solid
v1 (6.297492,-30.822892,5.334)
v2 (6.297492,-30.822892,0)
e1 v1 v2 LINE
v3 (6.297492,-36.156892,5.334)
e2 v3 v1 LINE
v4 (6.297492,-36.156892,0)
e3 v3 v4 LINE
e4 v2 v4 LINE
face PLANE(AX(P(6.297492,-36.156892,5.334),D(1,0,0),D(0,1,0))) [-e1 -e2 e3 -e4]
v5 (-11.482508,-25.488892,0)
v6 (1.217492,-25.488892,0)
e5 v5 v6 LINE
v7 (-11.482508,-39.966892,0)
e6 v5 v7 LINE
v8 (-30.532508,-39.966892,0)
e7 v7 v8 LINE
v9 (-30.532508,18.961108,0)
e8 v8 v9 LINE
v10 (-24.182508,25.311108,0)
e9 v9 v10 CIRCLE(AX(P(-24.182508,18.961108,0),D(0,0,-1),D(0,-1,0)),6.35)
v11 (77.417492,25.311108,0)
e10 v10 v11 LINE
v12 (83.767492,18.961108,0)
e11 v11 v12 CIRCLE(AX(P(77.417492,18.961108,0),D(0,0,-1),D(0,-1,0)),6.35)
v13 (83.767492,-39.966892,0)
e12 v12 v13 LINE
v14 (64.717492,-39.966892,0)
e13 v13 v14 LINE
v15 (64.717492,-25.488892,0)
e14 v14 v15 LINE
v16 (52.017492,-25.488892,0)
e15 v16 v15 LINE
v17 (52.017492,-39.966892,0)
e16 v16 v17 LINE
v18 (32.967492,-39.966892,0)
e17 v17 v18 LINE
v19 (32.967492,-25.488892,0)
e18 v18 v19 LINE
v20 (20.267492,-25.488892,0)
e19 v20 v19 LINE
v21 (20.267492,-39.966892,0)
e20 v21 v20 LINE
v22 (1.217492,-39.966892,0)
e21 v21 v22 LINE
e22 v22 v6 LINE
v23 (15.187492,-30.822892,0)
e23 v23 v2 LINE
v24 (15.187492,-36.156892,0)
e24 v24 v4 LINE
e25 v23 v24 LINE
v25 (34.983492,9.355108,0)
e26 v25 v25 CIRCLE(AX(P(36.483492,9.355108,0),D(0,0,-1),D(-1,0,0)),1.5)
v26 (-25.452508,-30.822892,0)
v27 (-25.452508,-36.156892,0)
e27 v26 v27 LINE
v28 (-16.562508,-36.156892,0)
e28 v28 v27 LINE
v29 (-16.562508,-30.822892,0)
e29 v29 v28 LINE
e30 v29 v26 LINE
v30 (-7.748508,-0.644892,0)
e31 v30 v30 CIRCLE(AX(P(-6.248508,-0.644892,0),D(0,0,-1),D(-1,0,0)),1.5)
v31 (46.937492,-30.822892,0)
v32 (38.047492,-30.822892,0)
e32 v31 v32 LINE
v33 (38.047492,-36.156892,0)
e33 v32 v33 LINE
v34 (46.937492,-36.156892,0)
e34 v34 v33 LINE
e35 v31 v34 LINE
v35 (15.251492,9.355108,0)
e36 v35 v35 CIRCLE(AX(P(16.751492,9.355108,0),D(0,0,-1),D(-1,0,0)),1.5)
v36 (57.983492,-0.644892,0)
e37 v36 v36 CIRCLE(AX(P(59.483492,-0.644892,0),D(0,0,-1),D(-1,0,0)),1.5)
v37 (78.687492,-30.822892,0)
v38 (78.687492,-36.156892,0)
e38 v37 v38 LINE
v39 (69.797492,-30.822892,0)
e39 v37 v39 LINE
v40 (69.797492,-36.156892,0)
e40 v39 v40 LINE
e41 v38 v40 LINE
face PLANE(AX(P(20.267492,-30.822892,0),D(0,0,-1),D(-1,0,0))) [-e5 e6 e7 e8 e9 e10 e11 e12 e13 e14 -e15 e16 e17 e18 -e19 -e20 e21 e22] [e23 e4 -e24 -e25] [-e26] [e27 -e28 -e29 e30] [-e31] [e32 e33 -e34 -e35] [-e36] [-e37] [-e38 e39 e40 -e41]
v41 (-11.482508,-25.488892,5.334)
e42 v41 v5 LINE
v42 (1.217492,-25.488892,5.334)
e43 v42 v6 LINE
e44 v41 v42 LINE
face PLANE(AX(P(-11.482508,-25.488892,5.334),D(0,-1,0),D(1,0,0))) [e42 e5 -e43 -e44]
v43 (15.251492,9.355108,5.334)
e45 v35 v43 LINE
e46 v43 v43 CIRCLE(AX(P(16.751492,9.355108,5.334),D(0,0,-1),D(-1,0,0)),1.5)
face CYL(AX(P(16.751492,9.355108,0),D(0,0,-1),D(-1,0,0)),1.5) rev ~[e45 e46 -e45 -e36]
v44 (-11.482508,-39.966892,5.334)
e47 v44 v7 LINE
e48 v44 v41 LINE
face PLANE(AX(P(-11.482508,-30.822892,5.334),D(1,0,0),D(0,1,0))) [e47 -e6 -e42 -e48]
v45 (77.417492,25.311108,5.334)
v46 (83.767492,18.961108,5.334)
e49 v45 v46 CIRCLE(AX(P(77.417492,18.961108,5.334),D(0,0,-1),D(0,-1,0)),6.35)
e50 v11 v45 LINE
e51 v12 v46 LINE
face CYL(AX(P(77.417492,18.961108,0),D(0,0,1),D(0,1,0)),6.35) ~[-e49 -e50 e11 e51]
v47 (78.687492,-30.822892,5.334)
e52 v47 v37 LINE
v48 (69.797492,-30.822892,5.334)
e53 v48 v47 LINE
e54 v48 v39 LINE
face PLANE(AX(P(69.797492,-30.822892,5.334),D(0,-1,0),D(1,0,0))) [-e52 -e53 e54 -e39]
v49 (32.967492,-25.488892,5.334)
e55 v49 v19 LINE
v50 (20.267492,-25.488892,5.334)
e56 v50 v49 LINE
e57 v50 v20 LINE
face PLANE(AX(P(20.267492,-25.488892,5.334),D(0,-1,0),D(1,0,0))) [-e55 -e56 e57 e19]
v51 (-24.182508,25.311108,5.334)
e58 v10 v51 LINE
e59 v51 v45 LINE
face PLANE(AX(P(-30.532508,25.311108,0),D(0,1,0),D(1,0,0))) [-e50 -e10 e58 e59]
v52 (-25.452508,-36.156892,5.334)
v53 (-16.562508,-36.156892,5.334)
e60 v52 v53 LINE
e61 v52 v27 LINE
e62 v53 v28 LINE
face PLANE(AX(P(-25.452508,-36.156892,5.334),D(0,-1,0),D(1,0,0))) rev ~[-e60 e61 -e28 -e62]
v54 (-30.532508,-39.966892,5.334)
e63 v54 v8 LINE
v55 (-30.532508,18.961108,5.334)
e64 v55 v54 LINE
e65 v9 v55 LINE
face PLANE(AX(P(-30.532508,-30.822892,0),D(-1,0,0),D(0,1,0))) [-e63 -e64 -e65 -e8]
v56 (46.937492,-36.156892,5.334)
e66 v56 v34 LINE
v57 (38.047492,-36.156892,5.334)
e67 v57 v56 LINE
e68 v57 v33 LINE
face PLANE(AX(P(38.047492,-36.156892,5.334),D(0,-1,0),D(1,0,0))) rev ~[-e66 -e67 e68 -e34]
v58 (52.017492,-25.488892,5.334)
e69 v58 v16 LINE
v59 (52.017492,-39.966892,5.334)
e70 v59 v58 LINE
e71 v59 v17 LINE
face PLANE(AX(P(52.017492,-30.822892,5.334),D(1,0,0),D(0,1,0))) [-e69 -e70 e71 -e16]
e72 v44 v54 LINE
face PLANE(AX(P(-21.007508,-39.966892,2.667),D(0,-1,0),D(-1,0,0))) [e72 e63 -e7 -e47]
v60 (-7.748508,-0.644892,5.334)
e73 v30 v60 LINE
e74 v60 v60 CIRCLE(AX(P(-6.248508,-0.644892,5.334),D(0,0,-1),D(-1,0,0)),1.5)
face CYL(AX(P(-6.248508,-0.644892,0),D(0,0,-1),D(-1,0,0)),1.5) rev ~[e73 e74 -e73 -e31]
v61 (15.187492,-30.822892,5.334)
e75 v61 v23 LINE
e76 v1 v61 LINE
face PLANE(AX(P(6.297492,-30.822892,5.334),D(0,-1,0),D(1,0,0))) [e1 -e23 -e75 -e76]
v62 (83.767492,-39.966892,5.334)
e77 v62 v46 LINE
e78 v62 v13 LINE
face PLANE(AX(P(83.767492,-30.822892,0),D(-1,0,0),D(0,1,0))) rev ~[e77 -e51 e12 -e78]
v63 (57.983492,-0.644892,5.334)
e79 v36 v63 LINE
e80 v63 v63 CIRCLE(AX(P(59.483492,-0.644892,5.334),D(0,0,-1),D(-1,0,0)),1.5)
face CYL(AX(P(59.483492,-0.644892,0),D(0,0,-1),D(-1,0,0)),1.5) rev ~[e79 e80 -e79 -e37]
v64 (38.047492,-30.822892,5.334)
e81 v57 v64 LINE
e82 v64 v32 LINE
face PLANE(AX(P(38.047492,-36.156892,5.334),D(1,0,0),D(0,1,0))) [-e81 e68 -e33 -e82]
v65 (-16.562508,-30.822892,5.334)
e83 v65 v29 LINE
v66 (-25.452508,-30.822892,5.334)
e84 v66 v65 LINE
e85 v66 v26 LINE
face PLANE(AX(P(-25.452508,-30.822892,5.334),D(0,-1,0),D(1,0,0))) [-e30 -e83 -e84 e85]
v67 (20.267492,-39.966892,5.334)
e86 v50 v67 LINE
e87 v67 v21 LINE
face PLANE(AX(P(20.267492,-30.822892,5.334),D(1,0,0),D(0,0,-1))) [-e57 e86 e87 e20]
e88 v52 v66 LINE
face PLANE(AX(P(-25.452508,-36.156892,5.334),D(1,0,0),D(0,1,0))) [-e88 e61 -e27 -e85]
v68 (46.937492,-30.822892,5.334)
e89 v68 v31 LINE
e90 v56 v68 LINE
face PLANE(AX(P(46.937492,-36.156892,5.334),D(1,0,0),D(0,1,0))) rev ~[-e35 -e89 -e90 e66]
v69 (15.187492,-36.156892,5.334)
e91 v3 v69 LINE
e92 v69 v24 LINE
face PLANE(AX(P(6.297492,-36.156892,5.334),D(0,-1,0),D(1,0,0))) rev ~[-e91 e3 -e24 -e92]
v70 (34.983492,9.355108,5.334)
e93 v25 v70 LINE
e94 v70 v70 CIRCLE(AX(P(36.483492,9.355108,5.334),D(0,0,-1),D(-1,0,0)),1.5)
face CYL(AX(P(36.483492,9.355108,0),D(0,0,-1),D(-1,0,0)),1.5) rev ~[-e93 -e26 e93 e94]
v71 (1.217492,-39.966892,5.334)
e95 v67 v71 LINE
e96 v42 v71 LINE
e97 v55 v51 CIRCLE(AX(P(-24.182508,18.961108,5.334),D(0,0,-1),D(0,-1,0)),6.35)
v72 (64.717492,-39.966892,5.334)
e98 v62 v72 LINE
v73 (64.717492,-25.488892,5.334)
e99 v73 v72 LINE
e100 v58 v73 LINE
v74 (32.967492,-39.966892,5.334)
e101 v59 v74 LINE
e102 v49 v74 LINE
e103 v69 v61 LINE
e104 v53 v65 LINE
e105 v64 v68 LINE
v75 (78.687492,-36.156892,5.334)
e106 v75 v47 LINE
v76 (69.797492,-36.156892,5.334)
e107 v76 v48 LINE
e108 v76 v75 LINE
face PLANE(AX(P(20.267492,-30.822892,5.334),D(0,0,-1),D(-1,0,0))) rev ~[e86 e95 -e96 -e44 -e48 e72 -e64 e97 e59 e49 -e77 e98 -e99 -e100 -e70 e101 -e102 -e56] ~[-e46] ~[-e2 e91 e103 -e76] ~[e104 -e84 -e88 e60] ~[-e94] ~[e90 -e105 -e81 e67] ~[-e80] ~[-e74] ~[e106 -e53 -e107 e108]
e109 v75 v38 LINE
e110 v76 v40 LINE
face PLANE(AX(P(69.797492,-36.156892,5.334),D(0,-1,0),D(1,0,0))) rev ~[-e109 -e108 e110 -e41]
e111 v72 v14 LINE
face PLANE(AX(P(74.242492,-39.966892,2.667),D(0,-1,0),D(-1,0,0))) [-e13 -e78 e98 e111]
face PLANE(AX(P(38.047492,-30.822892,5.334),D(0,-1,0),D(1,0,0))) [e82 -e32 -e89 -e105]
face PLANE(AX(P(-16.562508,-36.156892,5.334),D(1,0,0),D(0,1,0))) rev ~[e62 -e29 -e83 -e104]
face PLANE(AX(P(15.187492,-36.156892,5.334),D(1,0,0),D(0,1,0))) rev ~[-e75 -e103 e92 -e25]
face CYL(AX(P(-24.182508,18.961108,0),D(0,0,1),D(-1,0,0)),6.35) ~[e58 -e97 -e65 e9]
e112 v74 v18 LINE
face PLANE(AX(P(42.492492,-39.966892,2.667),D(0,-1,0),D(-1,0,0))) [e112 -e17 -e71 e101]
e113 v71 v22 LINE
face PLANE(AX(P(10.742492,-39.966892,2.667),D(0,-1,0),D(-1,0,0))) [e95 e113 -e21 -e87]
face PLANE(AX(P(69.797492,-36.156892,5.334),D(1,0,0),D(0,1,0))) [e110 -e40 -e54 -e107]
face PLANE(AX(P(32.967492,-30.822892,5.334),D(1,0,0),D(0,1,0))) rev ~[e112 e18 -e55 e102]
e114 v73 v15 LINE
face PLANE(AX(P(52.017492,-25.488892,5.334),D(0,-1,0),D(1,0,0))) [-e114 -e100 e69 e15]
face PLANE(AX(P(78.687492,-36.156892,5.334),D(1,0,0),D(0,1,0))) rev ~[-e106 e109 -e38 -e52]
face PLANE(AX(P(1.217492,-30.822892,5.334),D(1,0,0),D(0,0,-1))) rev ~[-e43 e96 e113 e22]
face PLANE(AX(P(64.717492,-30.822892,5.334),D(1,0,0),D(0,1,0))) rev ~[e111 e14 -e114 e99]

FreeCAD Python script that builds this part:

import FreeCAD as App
import Part
import Sketcher
from FreeCAD import Vector
Q = App.Units.Quantity


def edges_at(feature, points):
    """Names of the edges that pass closest to the given points."""
    edges = feature.Shape.Edges
    near = lambda p: min(range(len(edges)), key=lambda i: edges[i].distToShape(Part.Vertex(*p))[0])
    return sorted({f"Edge{near(p) + 1}" for p in points})

doc = App.newDocument("Part")
params = doc.addObject("Spreadsheet::Sheet", "Params")
for row, (alias, value) in enumerate([
    ("sketch1_width", "4.5 in"),
    ("sketch1_height", "2.21 in"),
    ("pad1_length", "0.21 in"),
    ("sketch2_width", "0.5 in"),
    ("sketch2_height", "0.21 in"),
    ("fillet_radius", "0.25 in"),
    ("sketch4_width", "0.75 in"),
    ("sketch4_height", "0.21 in"),
    ("pad2_length", "0.36 in"),
    ("sketch5_width", "0.35 in"),
    ("sketch5_height", "0.21 in"),
], start=1):
    params.set(f"A{row}", alias)
    params.set(f"B{row}", "=" + value)
    params.setAlias(f"B{row}", alias)

body = doc.addObject("PartDesign::Body", "Body")

# Sketch on XY plane
sketch1 = body.newObject("Sketcher::SketchObject", "Sketch")
sketch1.AttachmentSupport = (doc.getObject("XY_Plane"), [""])
sketch1.MapMode = "FlatFace"
sketch1.addGeometry([
    Part.LineSegment(Vector(-31, 25, 0), Vector(-31, -31, 0)),
    Part.LineSegment(Vector(-31, -31, 0), Vector(84, -31, 0)),
    Part.LineSegment(Vector(84, -31, 0), Vector(84, 25, 0)),
    Part.LineSegment(Vector(84, 25, 0), Vector(-31, 25, 0)),
], False)
sketch1.addConstraint([
    Sketcher.Constraint("Coincident", 0, 2, 1, 1),
    Sketcher.Constraint("Coincident", 1, 2, 2, 1),
    Sketcher.Constraint("Coincident", 2, 2, 3, 1),
    Sketcher.Constraint("Coincident", 3, 2, 0, 1),
    Sketcher.Constraint("Vertical", 0),
    Sketcher.Constraint("Horizontal", 1),
    Sketcher.Constraint("Vertical", 2),
    Sketcher.Constraint("Horizontal", 3),
    Sketcher.Constraint("DistanceX", 1, 1, 1, 2, Q("4.5 in")),
    Sketcher.Constraint("DistanceY", 0, 2, 0, 1, Q("2.21 in")),
    Sketcher.Constraint("DistanceX", 0, 2, -1, 1, Q("30.532508 mm")),
    Sketcher.Constraint("DistanceY", 0, 2, -1, 1, Q("30.822892 mm")),
])
sketch1.setExpression("Constraints[8]", "Params.sketch1_width")
sketch1.setExpression("Constraints[9]", "Params.sketch1_height")
pad1 = body.newObject("PartDesign::Pad", "Pad")
pad1.Profile = sketch1
pad1.setExpression("Length", "Params.pad1_length")

# Sketch on XY plane
sketch2 = body.newObject("Sketcher::SketchObject", "Sketch001")
sketch2.AttachmentSupport = (doc.getObject("XY_Plane"), [""])
sketch2.MapMode = "FlatFace"
sketch2.AttachmentOffset = App.Placement(Vector(0, 0, 0.21 * 25.4), App.Rotation())
sketch2.addGeometry([
    Part.LineSegment(Vector(-11, -25, 0), Vector(-11, -31, 0)),  # 0
    Part.LineSegment(Vector(-11, -31, 0), Vector(1, -31, 0)),  # 1
    Part.LineSegment(Vector(1, -31, 0), Vector(1, -25, 0)),  # 2
    Part.LineSegment(Vector(1, -25, 0), Vector(-11, -25, 0)),  # 3
    Part.LineSegment(Vector(20, -25, 0), Vector(20, -31, 0)),  # 4
    Part.LineSegment(Vector(20, -31, 0), Vector(33, -31, 0)),  # 5
    Part.LineSegment(Vector(33, -31, 0), Vector(33, -25, 0)),  # 6
    Part.LineSegment(Vector(33, -25, 0), Vector(20, -25, 0)),  # 7
    Part.LineSegment(Vector(52, -25, 0), Vector(52, -31, 0)),  # 8
    Part.LineSegment(Vector(52, -31, 0), Vector(65, -31, 0)),  # 9
    Part.LineSegment(Vector(65, -31, 0), Vector(65, -25, 0)),  # 10
    Part.LineSegment(Vector(65, -25, 0), Vector(52, -25, 0)),  # 11
], False)
sketch2.addConstraint([
    Sketcher.Constraint("Coincident", 0, 2, 1, 1),
    Sketcher.Constraint("Coincident", 1, 2, 2, 1),
    Sketcher.Constraint("Coincident", 2, 2, 3, 1),
    Sketcher.Constraint("Coincident", 3, 2, 0, 1),
    Sketcher.Constraint("Coincident", 4, 2, 5, 1),
    Sketcher.Constraint("Coincident", 5, 2, 6, 1),
    Sketcher.Constraint("Coincident", 6, 2, 7, 1),
    Sketcher.Constraint("Coincident", 7, 2, 4, 1),
    Sketcher.Constraint("Coincident", 8, 2, 9, 1),
    Sketcher.Constraint("Coincident", 9, 2, 10, 1),
    Sketcher.Constraint("Coincident", 10, 2, 11, 1),
    Sketcher.Constraint("Coincident", 11, 2, 8, 1),
    Sketcher.Constraint("Vertical", 0),
    Sketcher.Constraint("Horizontal", 1),
    Sketcher.Constraint("Vertical", 2),
    Sketcher.Constraint("Horizontal", 3),
    Sketcher.Constraint("Vertical", 4),
    Sketcher.Constraint("Horizontal", 5),
    Sketcher.Constraint("Vertical", 6),
    Sketcher.Constraint("Horizontal", 7),
    Sketcher.Constraint("Vertical", 8),
    Sketcher.Constraint("Horizontal", 9),
    Sketcher.Constraint("Vertical", 10),
    Sketcher.Constraint("Horizontal", 11),
    Sketcher.Constraint("Horizontal", 1, 2, 4, 2),
    Sketcher.Constraint("Horizontal", 3, 2, 6, 2),
    Sketcher.Constraint("Horizontal", 5, 2, 8, 2),
    Sketcher.Constraint("Horizontal", 7, 2, 10, 2),
    Sketcher.Constraint("Equal", 3, 5),
    Sketcher.Constraint("Equal", 7, 9),
    Sketcher.Constraint("DistanceX", 1, 1, 1, 2, Q("0.5 in")),
    Sketcher.Constraint("DistanceX", 1, 2, 8, 2, Q("2 in")),
    Sketcher.Constraint("DistanceY", 0, 2, 0, 1, Q("0.21 in")),
    Sketcher.Constraint("DistanceX", 1, 2, 4, 2, Q("0.75 in")),
    Sketcher.Constraint("DistanceX", 0, 2, -1, 1, Q("11.482508 mm")),
    Sketcher.Constraint("DistanceY", 0, 2, -1, 1, Q("30.822892 mm")),
])
sketch2.setExpression("Constraints[30]", "Params.sketch2_width")
sketch2.setExpression("Constraints[32]", "Params.sketch2_height")
pocket1 = body.newObject("PartDesign::Pocket", "Pocket")
pocket1.Profile = sketch2
pocket1.Type = "ThroughAll"
doc.recompute()

fillet = body.newObject("PartDesign::Fillet", "Fillet")
fillet.Base = (pocket1, edges_at(pocket1, [(-30.533, 25.311, 2.667), (83.767, 25.311, 2.667)]))
fillet.setExpression("Radius", "Params.fillet_radius")

# Sketch on XY plane
sketch3 = body.newObject("Sketcher::SketchObject", "Sketch002")
sketch3.AttachmentSupport = (doc.getObject("XY_Plane"), [""])
sketch3.MapMode = "FlatFace"
sketch3.addGeometry([
    Part.Circle(Vector(-6.2, -0.6, 0), Vector(0, 0, 1), 1.5),
    Part.Circle(Vector(16.8, 9.4, 0), Vector(0, 0, 1), 1.5),
    Part.Circle(Vector(59.5, -0.6, 0), Vector(0, 0, 1), 1.5),
    Part.Circle(Vector(36.5, 9.4, 0), Vector(0, 0, 1), 1.5),
], False)
sketch3.addConstraint([
    Sketcher.Constraint("Equal", 0, 1),
    Sketcher.Constraint("Equal", 1, 2),
    Sketcher.Constraint("Equal", 2, 3),
    Sketcher.Constraint("Horizontal", 0, 3, 2, 3),
    Sketcher.Constraint("Horizontal", 1, 3, 3, 3),
    Sketcher.Constraint("Diameter", 0, Q("3 mm")),
    Sketcher.Constraint("DistanceX", 0, 3, 1, 3, Q("23 mm")),
    Sketcher.Constraint("DistanceY", 0, 3, 1, 3, Q("10 mm")),
    Sketcher.Constraint("DistanceX", 1, 3, 2, 3, Q("42.732 mm")),
    Sketcher.Constraint("DistanceX", 1, 3, 3, 3, Q("19.732 mm")),
    Sketcher.Constraint("DistanceX", 0, 3, -1, 1, Q("6.248508 mm")),
    Sketcher.Constraint("DistanceY", 0, 3, -1, 1, Q("0.644892 mm")),
])
pocket2 = body.newObject("PartDesign::Pocket", "Pocket001")
pocket2.Profile = sketch3
pocket2.Type = "ThroughAll"
pocket2.Reversed = True

# Sketch on XZ plane
sketch4 = body.newObject("Sketcher::SketchObject", "Sketch003")
sketch4.AttachmentSupport = (doc.getObject("XZ_Plane"), [""])
sketch4.MapMode = "FlatFace"
sketch4.AttachmentOffset = App.Placement(Vector(0, 0, 30.822892), App.Rotation())
sketch4.addGeometry([
    Part.LineSegment(Vector(20, 0, 0), Vector(20, 5, 0)),  # 0
    Part.LineSegment(Vector(20, 5, 0), Vector(1, 5, 0)),  # 1
    Part.LineSegment(Vector(1, 5, 0), Vector(1, 0, 0)),  # 2
    Part.LineSegment(Vector(1, 0, 0), Vector(20, 0, 0)),  # 3
    Part.LineSegment(Vector(-11, 0, 0), Vector(-11, 5, 0)),  # 4
    Part.LineSegment(Vector(-11, 5, 0), Vector(-31, 5, 0)),  # 5
    Part.LineSegment(Vector(-31, 5, 0), Vector(-31, 0, 0)),  # 6
    Part.LineSegment(Vector(-31, 0, 0), Vector(-11, 0, 0)),  # 7
    Part.LineSegment(Vector(52, 0, 0), Vector(52, 5, 0)),  # 8
    Part.LineSegment(Vector(52, 5, 0), Vector(33, 5, 0)),  # 9
    Part.LineSegment(Vector(33, 5, 0), Vector(33, 0, 0)),  # 10
    Part.LineSegment(Vector(33, 0, 0), Vector(52, 0, 0)),  # 11
    Part.LineSegment(Vector(84, 0, 0), Vector(84, 5, 0)),  # 12
    Part.LineSegment(Vector(84, 5, 0), Vector(65, 5, 0)),  # 13
    Part.LineSegment(Vector(65, 5, 0), Vector(65, 0, 0)),  # 14
    Part.LineSegment(Vector(65, 0, 0), Vector(84, 0, 0)),  # 15
], False)
sketch4.addConstraint([
    Sketcher.Constraint("Coincident", 0, 2, 1, 1),
    Sketcher.Constraint("Coincident", 1, 2, 2, 1),
    Sketcher.Constraint("Coincident", 2, 2, 3, 1),
    Sketcher.Constraint("Coincident", 3, 2, 0, 1),
    Sketcher.Constraint("Coincident", 4, 2, 5, 1),
    Sketcher.Constraint("Coincident", 5, 2, 6, 1),
    Sketcher.Constraint("Coincident", 6, 2, 7, 1),
    Sketcher.Constraint("Coincident", 7, 2, 4, 1),
    Sketcher.Constraint("Coincident", 8, 2, 9, 1),
    Sketcher.Constraint("Coincident", 9, 2, 10, 1),
    Sketcher.Constraint("Coincident", 10, 2, 11, 1),
    Sketcher.Constraint("Coincident", 11, 2, 8, 1),
    Sketcher.Constraint("Coincident", 12, 2, 13, 1),
    Sketcher.Constraint("Coincident", 13, 2, 14, 1),
    Sketcher.Constraint("Coincident", 14, 2, 15, 1),
    Sketcher.Constraint("Coincident", 15, 2, 12, 1),
    Sketcher.Constraint("Vertical", 0),
    Sketcher.Constraint("Horizontal", 1),
    Sketcher.Constraint("Vertical", 2),
    Sketcher.Constraint("Horizontal", 3),
    Sketcher.Constraint("Vertical", 4),
    Sketcher.Constraint("Horizontal", 5),
    Sketcher.Constraint("Vertical", 6),
    Sketcher.Constraint("Horizontal", 7),
    Sketcher.Constraint("Vertical", 8),
    Sketcher.Constraint("Horizontal", 9),
    Sketcher.Constraint("Vertical", 10),
    Sketcher.Constraint("Horizontal", 11),
    Sketcher.Constraint("Vertical", 12),
    Sketcher.Constraint("Horizontal", 13),
    Sketcher.Constraint("Vertical", 14),
    Sketcher.Constraint("Horizontal", 15),
    Sketcher.Constraint("PointOnObject", 2, 2, -1),
    Sketcher.Constraint("PointOnObject", 6, 2, -1),
    Sketcher.Constraint("PointOnObject", 10, 2, -1),
    Sketcher.Constraint("PointOnObject", 14, 2, -1),
    Sketcher.Constraint("Horizontal", 1, 2, 4, 2),
    Sketcher.Constraint("Horizontal", 5, 2, 8, 2),
    Sketcher.Constraint("Horizontal", 9, 2, 12, 2),
    Sketcher.Constraint("Equal", 3, 5),
    Sketcher.Constraint("Equal", 7, 9),
    Sketcher.Constraint("Equal", 11, 13),
    Sketcher.Constraint("DistanceX", 5, 2, 0, 2, Q("2 in")),
    Sketcher.Constraint("DistanceX", 1, 2, 8, 2, Q("2 in")),
    Sketcher.Constraint("DistanceX", 9, 2, 12, 2, Q("2 in")),
    Sketcher.Constraint("DistanceX", 1, 2, 1, 1, Q("0.75 in")),
    Sketcher.Constraint("DistanceY", 0, 1, 0, 2, Q("0.21 in")),
    Sketcher.Constraint("DistanceX", -1, 1, 0, 2, Q("20.267492 mm")),
])
sketch4.setExpression("Constraints[45]", "Params.sketch4_width")
sketch4.setExpression("Constraints[46]", "Params.sketch4_height")
pad2 = body.newObject("PartDesign::Pad", "Pad001")
pad2.Profile = sketch4
pad2.setExpression("Length", "Params.pad2_length")

# Sketch on XY plane
sketch5 = body.newObject("Sketcher::SketchObject", "Sketch004")
sketch5.AttachmentSupport = (doc.getObject("XY_Plane"), [""])
sketch5.MapMode = "FlatFace"
sketch5.AttachmentOffset = App.Placement(Vector(0, 0, 0.21 * 25.4), App.Rotation())
sketch5.addGeometry([
    Part.LineSegment(Vector(-25, -31, 0), Vector(-25, -36, 0)),  # 0
    Part.LineSegment(Vector(-25, -36, 0), Vector(-17, -36, 0)),  # 1
    Part.LineSegment(Vector(-17, -36, 0), Vector(-17, -31, 0)),  # 2
    Part.LineSegment(Vector(-17, -31, 0), Vector(-25, -31, 0)),  # 3
    Part.LineSegment(Vector(6, -31, 0), Vector(6, -36, 0)),  # 4
    Part.LineSegment(Vector(6, -36, 0), Vector(15, -36, 0)),  # 5
    Part.LineSegment(Vector(15, -36, 0), Vector(15, -31, 0)),  # 6
    Part.LineSegment(Vector(15, -31, 0), Vector(6, -31, 0)),  # 7
    Part.LineSegment(Vector(38, -31, 0), Vector(38, -36, 0)),  # 8
    Part.LineSegment(Vector(38, -36, 0), Vector(47, -36, 0)),  # 9
    Part.LineSegment(Vector(47, -36, 0), Vector(47, -31, 0)),  # 10
    Part.LineSegment(Vector(47, -31, 0), Vector(38, -31, 0)),  # 11
    Part.LineSegment(Vector(70, -31, 0), Vector(70, -36, 0)),  # 12
    Part.LineSegment(Vector(70, -36, 0), Vector(79, -36, 0)),  # 13
    Part.LineSegment(Vector(79, -36, 0), Vector(79, -31, 0)),  # 14
    Part.LineSegment(Vector(79, -31, 0), Vector(70, -31, 0)),  # 15
], False)
sketch5.addConstraint([
    Sketcher.Constraint("Coincident", 0, 2, 1, 1),
    Sketcher.Constraint("Coincident", 1, 2, 2, 1),
    Sketcher.Constraint("Coincident", 2, 2, 3, 1),
    Sketcher.Constraint("Coincident", 3, 2, 0, 1),
    Sketcher.Constraint("Coincident", 4, 2, 5, 1),
    Sketcher.Constraint("Coincident", 5, 2, 6, 1),
    Sketcher.Constraint("Coincident", 6, 2, 7, 1),
    Sketcher.Constraint("Coincident", 7, 2, 4, 1),
    Sketcher.Constraint("Coincident", 8, 2, 9, 1),
    Sketcher.Constraint("Coincident", 9, 2, 10, 1),
    Sketcher.Constraint("Coincident", 10, 2, 11, 1),
    Sketcher.Constraint("Coincident", 11, 2, 8, 1),
    Sketcher.Constraint("Coincident", 12, 2, 13, 1),
    Sketcher.Constraint("Coincident", 13, 2, 14, 1),
    Sketcher.Constraint("Coincident", 14, 2, 15, 1),
    Sketcher.Constraint("Coincident", 15, 2, 12, 1),
    Sketcher.Constraint("Vertical", 0),
    Sketcher.Constraint("Horizontal", 1),
    Sketcher.Constraint("Vertical", 2),
    Sketcher.Constraint("Horizontal", 3),
    Sketcher.Constraint("Vertical", 4),
    Sketcher.Constraint("Horizontal", 5),
    Sketcher.Constraint("Vertical", 6),
    Sketcher.Constraint("Horizontal", 7),
    Sketcher.Constraint("Vertical", 8),
    Sketcher.Constraint("Horizontal", 9),
    Sketcher.Constraint("Vertical", 10),
    Sketcher.Constraint("Horizontal", 11),
    Sketcher.Constraint("Vertical", 12),
    Sketcher.Constraint("Horizontal", 13),
    Sketcher.Constraint("Vertical", 14),
    Sketcher.Constraint("Horizontal", 15),
    Sketcher.Constraint("Horizontal", 1, 2, 4, 2),
    Sketcher.Constraint("Horizontal", 3, 2, 6, 2),
    Sketcher.Constraint("Horizontal", 5, 2, 8, 2),
    Sketcher.Constraint("Horizontal", 7, 2, 10, 2),
    Sketcher.Constraint("Horizontal", 9, 2, 12, 2),
    Sketcher.Constraint("Horizontal", 11, 2, 14, 2),
    Sketcher.Constraint("Equal", 3, 5),
    Sketcher.Constraint("Equal", 7, 9),
    Sketcher.Constraint("Equal", 11, 13),
    Sketcher.Constraint("DistanceX", 1, 1, 1, 2, Q("0.35 in")),
    Sketcher.Constraint("DistanceY", 0, 2, 0, 1, Q("0.21 in")),
    Sketcher.Constraint("DistanceX", 1, 2, 4, 2, Q("0.9 in")),
    Sketcher.Constraint("DistanceX", 5, 2, 8, 2, Q("0.9 in")),
    Sketcher.Constraint("DistanceX", 9, 2, 12, 2, Q("0.9 in")),
    Sketcher.Constraint("DistanceX", 0, 2, -1, 1, Q("25.452508 mm")),
    Sketcher.Constraint("DistanceY", 0, 2, -1, 1, Q("36.156892 mm")),
])
sketch5.setExpression("Constraints[41]", "Params.sketch5_width")
sketch5.setExpression("Constraints[42]", "Params.sketch5_height")
pocket3 = body.newObject("PartDesign::Pocket", "Pocket002")
pocket3.Profile = sketch5
pocket3.Type = "ThroughAll"

doc.recompute()
